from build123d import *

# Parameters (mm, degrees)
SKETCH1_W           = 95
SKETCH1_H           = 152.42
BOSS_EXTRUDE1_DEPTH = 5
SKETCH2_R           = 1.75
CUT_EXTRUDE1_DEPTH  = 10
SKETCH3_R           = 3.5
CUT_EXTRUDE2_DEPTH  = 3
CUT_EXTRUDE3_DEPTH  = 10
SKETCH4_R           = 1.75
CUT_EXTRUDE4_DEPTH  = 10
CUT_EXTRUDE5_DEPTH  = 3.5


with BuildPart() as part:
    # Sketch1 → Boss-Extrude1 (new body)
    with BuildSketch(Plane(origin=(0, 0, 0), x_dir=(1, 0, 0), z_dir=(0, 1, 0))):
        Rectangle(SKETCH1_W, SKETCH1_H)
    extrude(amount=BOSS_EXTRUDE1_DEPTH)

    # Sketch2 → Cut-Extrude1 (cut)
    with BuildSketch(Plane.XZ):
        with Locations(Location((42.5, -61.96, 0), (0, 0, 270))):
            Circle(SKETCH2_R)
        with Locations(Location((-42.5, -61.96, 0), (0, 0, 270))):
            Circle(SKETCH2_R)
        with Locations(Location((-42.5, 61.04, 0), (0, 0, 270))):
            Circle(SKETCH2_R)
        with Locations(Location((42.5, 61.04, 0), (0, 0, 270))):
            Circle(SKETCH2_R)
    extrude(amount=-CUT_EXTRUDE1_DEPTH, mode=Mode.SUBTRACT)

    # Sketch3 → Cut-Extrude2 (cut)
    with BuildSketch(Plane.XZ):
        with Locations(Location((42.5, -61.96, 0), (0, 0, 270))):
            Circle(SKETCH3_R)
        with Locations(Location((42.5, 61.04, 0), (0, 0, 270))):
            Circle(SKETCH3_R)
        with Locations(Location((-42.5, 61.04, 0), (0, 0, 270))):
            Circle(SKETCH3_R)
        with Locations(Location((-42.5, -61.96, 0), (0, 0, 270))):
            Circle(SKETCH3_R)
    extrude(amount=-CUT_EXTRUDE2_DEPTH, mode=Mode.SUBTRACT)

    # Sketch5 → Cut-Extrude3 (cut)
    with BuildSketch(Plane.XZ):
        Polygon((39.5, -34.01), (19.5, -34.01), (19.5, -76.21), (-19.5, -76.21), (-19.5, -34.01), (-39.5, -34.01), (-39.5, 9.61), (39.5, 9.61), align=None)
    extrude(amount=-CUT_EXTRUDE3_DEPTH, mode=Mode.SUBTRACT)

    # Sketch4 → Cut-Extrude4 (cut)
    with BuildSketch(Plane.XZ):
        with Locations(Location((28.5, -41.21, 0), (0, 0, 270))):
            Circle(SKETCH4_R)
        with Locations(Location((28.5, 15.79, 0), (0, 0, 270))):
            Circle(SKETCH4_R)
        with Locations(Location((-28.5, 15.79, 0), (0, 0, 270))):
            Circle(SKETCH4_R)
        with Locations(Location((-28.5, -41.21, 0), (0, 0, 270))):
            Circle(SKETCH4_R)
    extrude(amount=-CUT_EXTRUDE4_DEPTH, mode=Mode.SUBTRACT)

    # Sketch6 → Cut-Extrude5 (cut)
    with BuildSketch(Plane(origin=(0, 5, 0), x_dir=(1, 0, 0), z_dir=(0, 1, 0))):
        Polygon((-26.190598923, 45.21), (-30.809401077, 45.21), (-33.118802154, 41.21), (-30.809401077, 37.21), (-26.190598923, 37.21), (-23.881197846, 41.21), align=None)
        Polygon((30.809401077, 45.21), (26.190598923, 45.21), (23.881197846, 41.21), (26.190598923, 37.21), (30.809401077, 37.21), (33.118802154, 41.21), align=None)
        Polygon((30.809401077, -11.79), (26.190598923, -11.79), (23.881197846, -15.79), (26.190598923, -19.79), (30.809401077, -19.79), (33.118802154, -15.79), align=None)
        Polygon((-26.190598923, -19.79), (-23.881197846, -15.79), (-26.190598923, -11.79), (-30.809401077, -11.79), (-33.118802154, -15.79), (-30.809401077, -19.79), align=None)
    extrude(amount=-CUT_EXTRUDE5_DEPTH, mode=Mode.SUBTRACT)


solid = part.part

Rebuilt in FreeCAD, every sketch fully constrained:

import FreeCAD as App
import Part
import Sketcher
Q = App.Units.Quantity

doc = App.newDocument("Part")
body = doc.addObject("PartDesign::Body", "Body")

# Sketch on XZ plane
sketch1 = body.newObject("Sketcher::SketchObject", "Sketch")
sketch1.AttachmentSupport = (doc.getObject("XZ_Plane"), [""])
sketch1.MapMode = "FlatFace"
sketch1.addGeometry([
    Part.LineSegment(App.Vector(-48, -76, 0), App.Vector(-48, 76, 0)),
    Part.LineSegment(App.Vector(-48, 76, 0), App.Vector(48, 76, 0)),
    Part.LineSegment(App.Vector(48, 76, 0), App.Vector(48, -76, 0)),
    Part.LineSegment(App.Vector(48, -76, 0), App.Vector(-48, -76, 0)),
], False)
sketch1.addConstraint([
    Sketcher.Constraint("Coincident", 0, 2, 1, 1),
    Sketcher.Constraint("Coincident", 1, 2, 2, 1),
    Sketcher.Constraint("Coincident", 2, 2, 3, 1),
    Sketcher.Constraint("Coincident", 3, 2, 0, 1),
    Sketcher.Constraint("Vertical", 0),
    Sketcher.Constraint("Horizontal", 1),
    Sketcher.Constraint("Vertical", 2),
    Sketcher.Constraint("Horizontal", 3),
    Sketcher.Constraint("Symmetric", 0, 2, 2, 2, -1, 1),
    Sketcher.Constraint("DistanceX", 1, 1, 1, 2, 95.0),
    Sketcher.Constraint("DistanceY", 0, 1, 0, 2, 152.42),
])
pad1 = body.newObject("PartDesign::Pad", "Pad")
pad1.Profile = sketch1
pad1.Length = 5
pad1.Reversed = True

# Sketch on XZ plane
sketch2 = body.newObject("Sketcher::SketchObject", "Sketch001")
sketch2.AttachmentSupport = (doc.getObject("XZ_Plane"), [""])
sketch2.MapMode = "FlatFace"
sketch2.addGeometry([
    Part.Circle(App.Vector(42.5, -62, 0), App.Vector(0, 0, 1), 1.8),
    Part.Circle(App.Vector(-42.5, -62, 0), App.Vector(0, 0, 1), 1.8),
    Part.Circle(App.Vector(-42.5, 61, 0), App.Vector(0, 0, 1), 1.8),
    Part.Circle(App.Vector(42.5, 61, 0), App.Vector(0, 0, 1), 1.8),
], False)
sketch2.addConstraint([
    Sketcher.Constraint("Equal", 0, 1),
    Sketcher.Constraint("Equal", 1, 2),
    Sketcher.Constraint("Equal", 2, 3),
    Sketcher.Constraint("Symmetric", 0, 3, 1, 3, -2),
    Sketcher.Constraint("Symmetric", 2, 3, 3, 3, -2),
    Sketcher.Constraint("Vertical", 1, 3, 2, 3),
    Sketcher.Constraint("Diameter", 0, 3.5),
    Sketcher.Constraint("DistanceX", 1, 3, 0, 3, 85.0),
    Sketcher.Constraint("DistanceY", 1, 3, 2, 3, 123.0),
    Sketcher.Constraint("DistanceY", 0, 3, -1, 1, 61.96),
])
pocket1 = body.newObject("PartDesign::Pocket", "Pocket")
pocket1.Profile = sketch2
pocket1.Length = 10

# Sketch on XZ plane
sketch3 = body.newObject("Sketcher::SketchObject", "Sketch002")
sketch3.AttachmentSupport = (doc.getObject("XZ_Plane"), [""])
sketch3.MapMode = "FlatFace"
sketch3.addGeometry([
    Part.Circle(App.Vector(42.5, -62, 0), App.Vector(0, 0, 1), 3.5),
    Part.Circle(App.Vector(42.5, 61, 0), App.Vector(0, 0, 1), 3.5),
    Part.Circle(App.Vector(-42.5, 61, 0), App.Vector(0, 0, 1), 3.5),
    Part.Circle(App.Vector(-42.5, -62, 0), App.Vector(0, 0, 1), 3.5),
], False)
sketch3.addConstraint([
    Sketcher.Constraint("Equal", 0, 1),
    Sketcher.Constraint("Equal", 1, 2),
    Sketcher.Constraint("Equal", 2, 3),
    Sketcher.Constraint("Symmetric", 1, 3, 2, 3, -2),
    Sketcher.Constraint("Symmetric", 0, 3, 3, 3, -2),
    Sketcher.Constraint("Vertical", 0, 3, 1, 3),
    Sketcher.Constraint("Diameter", 0, 7.0),
    Sketcher.Constraint("DistanceY", 0, 3, 1, 3, 123.0),
    Sketcher.Constraint("DistanceX", 2, 3, 1, 3, 85.0),
    Sketcher.Constraint("DistanceY", 0, 3, -1, 1, 61.96),
])
pocket2 = body.newObject("PartDesign::Pocket", "Pocket001")
pocket2.Profile = sketch3
pocket2.Length = 3

# Sketch on XZ plane
sketch4 = body.newObject("Sketcher::SketchObject", "Sketch003")
sketch4.AttachmentSupport = (doc.getObject("XZ_Plane"), [""])
sketch4.MapMode = "FlatFace"
sketch4.addGeometry([
    Part.LineSegment(App.Vector(20, -34, 0), App.Vector(40, -34, 0)),  # 0
    Part.LineSegment(App.Vector(40, -34, 0), App.Vector(40, 10, 0)),  # 1
    Part.LineSegment(App.Vector(40, 10, 0), App.Vector(-40, 10, 0)),  # 2
    Part.LineSegment(App.Vector(-40, 10, 0), App.Vector(-40, -34, 0)),  # 3
    Part.LineSegment(App.Vector(-40, -34, 0), App.Vector(-20, -34, 0)),  # 4
    Part.LineSegment(App.Vector(-20, -34, 0), App.Vector(-20, -76, 0)),  # 5
    Part.LineSegment(App.Vector(-20, -76, 0), App.Vector(20, -76, 0)),  # 6
    Part.LineSegment(App.Vector(20, -76, 0), App.Vector(20, -34, 0)),  # 7
], False)
sketch4.addConstraint([
    Sketcher.Constraint("Coincident", 0, 2, 1, 1),
    Sketcher.Constraint("Coincident", 1, 2, 2, 1),
    Sketcher.Constraint("Coincident", 2, 2, 3, 1),
    Sketcher.Constraint("Coincident", 3, 2, 4, 1),
    Sketcher.Constraint("Coincident", 4, 2, 5, 1),
    Sketcher.Constraint("Coincident", 5, 2, 6, 1),
    Sketcher.Constraint("Coincident", 6, 2, 7, 1),
    Sketcher.Constraint("Coincident", 7, 2, 0, 1),
    Sketcher.Constraint("Horizontal", 0),
    Sketcher.Constraint("Vertical", 1),
    Sketcher.Constraint("Horizontal", 2),
    Sketcher.Constraint("Vertical", 3),
    Sketcher.Constraint("Horizontal", 4),
    Sketcher.Constraint("Vertical", 5),
    Sketcher.Constraint("Horizontal", 6),
    Sketcher.Constraint("Vertical", 7),
    Sketcher.Constraint("Symmetric", 0, 2, 3, 2, -2),
    Sketcher.Constraint("Equal", 0, 4),
    Sketcher.Constraint("DistanceX", 0, 1, 0, 2, 20.0),
    Sketcher.Constraint("DistanceX", 2, 2, 2, 1, 79.0),
    Sketcher.Constraint("DistanceY", 5, 2, 5, 1, 42.2),
    Sketcher.Constraint("DistanceY", 1, 1, 1, 2, 43.62),
    Sketcher.Constraint("DistanceY", 0, 2, -1, 1, 34.01),
])
pocket3 = body.newObject("PartDesign::Pocket", "Pocket002")
pocket3.Profile = sketch4
pocket3.Length = 10

# Sketch on XZ plane
sketch5 = body.newObject("Sketcher::SketchObject", "Sketch004")
sketch5.AttachmentSupport = (doc.getObject("XZ_Plane"), [""])
sketch5.MapMode = "FlatFace"
sketch5.addGeometry([
    Part.Circle(App.Vector(28.5, -41.2, 0), App.Vector(0, 0, 1), 1.8),
    Part.Circle(App.Vector(28.5, 15.8, 0), App.Vector(0, 0, 1), 1.8),
    Part.Circle(App.Vector(-28.5, 15.8, 0), App.Vector(0, 0, 1), 1.8),
    Part.Circle(App.Vector(-28.5, -41.2, 0), App.Vector(0, 0, 1), 1.8),
], False)
sketch5.addConstraint([
    Sketcher.Constraint("Equal", 0, 1),
    Sketcher.Constraint("Equal", 1, 2),
    Sketcher.Constraint("Equal", 2, 3),
    Sketcher.Constraint("Symmetric", 1, 3, 2, 3, -2),
    Sketcher.Constraint("Symmetric", 0, 3, 3, 3, -2),
    Sketcher.Constraint("Vertical", 0, 3, 1, 3),
    Sketcher.Constraint("Diameter", 0, 3.5),
    Sketcher.Constraint("DistanceY", 0, 3, 1, 3, 57.0),
    Sketcher.Constraint("DistanceX", 2, 3, 1, 3, 57.0),
    Sketcher.Constraint("DistanceY", 0, 3, -1, 1, 41.21),
])
pocket4 = body.newObject("PartDesign::Pocket", "Pocket003")
pocket4.Profile = sketch5
pocket4.Length = 10

# Sketch on XZ plane
sketch6 = body.newObject("Sketcher::SketchObject", "Sketch005")
sketch6.AttachmentSupport = (doc.getObject("XZ_Plane"), [""])
sketch6.MapMode = "FlatFace"
sketch6.AttachmentOffset = App.Placement(App.Vector(0, 0, -5), App.Rotation())
sketch6.addGeometry([
    Part.LineSegment(App.Vector(-26.2, -45.2, 0), App.Vector(-30.8, -45.2, 0)),  # 0
    Part.LineSegment(App.Vector(-30.8, -45.2, 0), App.Vector(-33.1, -41.2, 0)),  # 1
    Part.LineSegment(App.Vector(-33.1, -41.2, 0), App.Vector(-30.8, -37.2, 0)),  # 2
    Part.LineSegment(App.Vector(-30.8, -37.2, 0), App.Vector(-26.2, -37.2, 0)),  # 3
    Part.LineSegment(App.Vector(-26.2, -37.2, 0), App.Vector(-23.9, -41.2, 0)),  # 4
    Part.LineSegment(App.Vector(-23.9, -41.2, 0), App.Vector(-26.2, -45.2, 0)),  # 5
    Part.LineSegment(App.Vector(30.8, -45.2, 0), App.Vector(26.2, -45.2, 0)),  # 6
    Part.LineSegment(App.Vector(26.2, -45.2, 0), App.Vector(23.9, -41.2, 0)),  # 7
    Part.LineSegment(App.Vector(23.9, -41.2, 0), App.Vector(26.2, -37.2, 0)),  # 8
    Part.LineSegment(App.Vector(26.2, -37.2, 0), App.Vector(30.8, -37.2, 0)),  # 9
    Part.LineSegment(App.Vector(30.8, -37.2, 0), App.Vector(33.1, -41.2, 0)),  # 10
    Part.LineSegment(App.Vector(33.1, -41.2, 0), App.Vector(30.8, -45.2, 0)),  # 11
    Part.LineSegment(App.Vector(30.8, 11.8, 0), App.Vector(26.2, 11.8, 0)),  # 12
    Part.LineSegment(App.Vector(26.2, 11.8, 0), App.Vector(23.9, 15.8, 0)),  # 13
    Part.LineSegment(App.Vector(23.9, 15.8, 0), App.Vector(26.2, 19.8, 0)),  # 14
    Part.LineSegment(App.Vector(26.2, 19.8, 0), App.Vector(30.8, 19.8, 0)),  # 15
    Part.LineSegment(App.Vector(30.8, 19.8, 0), App.Vector(33.1, 15.8, 0)),  # 16
    Part.LineSegment(App.Vector(33.1, 15.8, 0), App.Vector(30.8, 11.8, 0)),  # 17
    Part.LineSegment(App.Vector(-26.2, 19.8, 0), App.Vector(-23.9, 15.8, 0)),  # 18
    Part.LineSegment(App.Vector(-23.9, 15.8, 0), App.Vector(-26.2, 11.8, 0)),  # 19
    Part.LineSegment(App.Vector(-26.2, 11.8, 0), App.Vector(-30.8, 11.8, 0)),  # 20
    Part.LineSegment(App.Vector(-30.8, 11.8, 0), App.Vector(-33.1, 15.8, 0)),  # 21
    Part.LineSegment(App.Vector(-33.1, 15.8, 0), App.Vector(-30.8, 19.8, 0)),  # 22
    Part.LineSegment(App.Vector(-30.8, 19.8, 0), App.Vector(-26.2, 19.8, 0)),  # 23
], False)
sketch6.addConstraint([
    Sketcher.Constraint("Coincident", 0, 2, 1, 1),
    Sketcher.Constraint("Coincident", 1, 2, 2, 1),
    Sketcher.Constraint("Coincident", 2, 2, 3, 1),
    Sketcher.Constraint("Coincident", 3, 2, 4, 1),
    Sketcher.Constraint("Coincident", 4, 2, 5, 1),
    Sketcher.Constraint("Coincident", 5, 2, 0, 1),
    Sketcher.Constraint("Coincident", 6, 2, 7, 1),
    Sketcher.Constraint("Coincident", 7, 2, 8, 1),
    Sketcher.Constraint("Coincident", 8, 2, 9, 1),
    Sketcher.Constraint("Coincident", 9, 2, 10, 1),
    Sketcher.Constraint("Coincident", 10, 2, 11, 1),
    Sketcher.Constraint("Coincident", 11, 2, 6, 1),
    Sketcher.Constraint("Coincident", 12, 2, 13, 1),
    Sketcher.Constraint("Coincident", 13, 2, 14, 1),
    Sketcher.Constraint("Coincident", 14, 2, 15, 1),
    Sketcher.Constraint("Coincident", 15, 2, 16, 1),
    Sketcher.Constraint("Coincident", 16, 2, 17, 1),
    Sketcher.Constraint("Coincident", 17, 2, 12, 1),
    Sketcher.Constraint("Coincident", 18, 2, 19, 1),
    Sketcher.Constraint("Coincident", 19, 2, 20, 1),
    Sketcher.Constraint("Coincident", 20, 2, 21, 1),
    Sketcher.Constraint("Coincident", 21, 2, 22, 1),
    Sketcher.Constraint("Coincident", 22, 2, 23, 1),
    Sketcher.Constraint("Coincident", 23, 2, 18, 1),
    Sketcher.Constraint("Horizontal", 0),
    Sketcher.Constraint("Horizontal", 3),
    Sketcher.Constraint("Horizontal", 6),
    Sketcher.Constraint("Horizontal", 9),
    Sketcher.Constraint("Horizontal", 12),
    Sketcher.Constraint("Horizontal", 15),
    Sketcher.Constraint("Horizontal", 20),
    Sketcher.Constraint("Horizontal", 23),
    Sketcher.Constraint("Symmetric", 5, 2, 6, 2, -2),
    Sketcher.Constraint("Symmetric", 4, 2, 7, 2, -2),
    Sketcher.Constraint("Symmetric", 3, 2, 8, 2, -2),
    Sketcher.Constraint("Symmetric", 1, 2, 10, 2, -2),
    Sketcher.Constraint("Symmetric", 13, 2, 18, 2, -2),
    Sketcher.Constraint("Symmetric", 12, 2, 19, 2, -2),
    Sketcher.Constraint("Symmetric", 16, 2, 21, 2, -2),
    Sketcher.Constraint("Symmetric", 15, 2, 22, 2, -2),
    Sketcher.Constraint("Parallel", 1, 4),
    Sketcher.Constraint("Parallel", 2, 5),
    Sketcher.Constraint("Parallel", 4, 7),
    Sketcher.Constraint("Parallel", 7, 10),
    Sketcher.Constraint("Parallel", 8, 11),
    Sketcher.Constraint("Parallel", 10, 13),
    Sketcher.Constraint("Parallel", 11, 14),
    Sketcher.Constraint("Parallel", 13, 16),
    Sketcher.Constraint("Parallel", 14, 17),
    Sketcher.Constraint("Parallel", 16, 18),
    Sketcher.Constraint("Parallel", 18, 21),
    Sketcher.Constraint("Horizontal", 1, 2, 4, 2),
    Sketcher.Constraint("Horizontal", 13, 2, 16, 2),
    Sketcher.Constraint("Vertical", 0, 2, 2, 2),
    Sketcher.Constraint("Vertical", 8, 2, 12, 2),
    Sketcher.Constraint("Vertical", 7, 2, 13, 2),
    Sketcher.Constraint("Vertical", 12, 2, 14, 2),
    Sketcher.Constraint("Vertical", 11, 2, 15, 2),
    Sketcher.Constraint("Angle", 1, Q("120 deg")),
    Sketcher.Constraint("DistanceY", 0, 2, 1, 2, 4.0),
    Sketcher.Constraint("DistanceX", 0, 2, 6, 2, 57.0),
    Sketcher.Constraint("DistanceY", 8, 2, 12, 2, 49.0),
    Sketcher.Constraint("DistanceY", 0, 2, -1, 1, 45.21),
    Sketcher.Constraint("DistanceX", 0, 2, -1, 1, 30.809401),
])
pocket5 = body.newObject("PartDesign::Pocket", "Pocket004")
pocket5.Profile = sketch6
pocket5.Length = 3.5
pocket5.Reversed = True

doc.recompute()
